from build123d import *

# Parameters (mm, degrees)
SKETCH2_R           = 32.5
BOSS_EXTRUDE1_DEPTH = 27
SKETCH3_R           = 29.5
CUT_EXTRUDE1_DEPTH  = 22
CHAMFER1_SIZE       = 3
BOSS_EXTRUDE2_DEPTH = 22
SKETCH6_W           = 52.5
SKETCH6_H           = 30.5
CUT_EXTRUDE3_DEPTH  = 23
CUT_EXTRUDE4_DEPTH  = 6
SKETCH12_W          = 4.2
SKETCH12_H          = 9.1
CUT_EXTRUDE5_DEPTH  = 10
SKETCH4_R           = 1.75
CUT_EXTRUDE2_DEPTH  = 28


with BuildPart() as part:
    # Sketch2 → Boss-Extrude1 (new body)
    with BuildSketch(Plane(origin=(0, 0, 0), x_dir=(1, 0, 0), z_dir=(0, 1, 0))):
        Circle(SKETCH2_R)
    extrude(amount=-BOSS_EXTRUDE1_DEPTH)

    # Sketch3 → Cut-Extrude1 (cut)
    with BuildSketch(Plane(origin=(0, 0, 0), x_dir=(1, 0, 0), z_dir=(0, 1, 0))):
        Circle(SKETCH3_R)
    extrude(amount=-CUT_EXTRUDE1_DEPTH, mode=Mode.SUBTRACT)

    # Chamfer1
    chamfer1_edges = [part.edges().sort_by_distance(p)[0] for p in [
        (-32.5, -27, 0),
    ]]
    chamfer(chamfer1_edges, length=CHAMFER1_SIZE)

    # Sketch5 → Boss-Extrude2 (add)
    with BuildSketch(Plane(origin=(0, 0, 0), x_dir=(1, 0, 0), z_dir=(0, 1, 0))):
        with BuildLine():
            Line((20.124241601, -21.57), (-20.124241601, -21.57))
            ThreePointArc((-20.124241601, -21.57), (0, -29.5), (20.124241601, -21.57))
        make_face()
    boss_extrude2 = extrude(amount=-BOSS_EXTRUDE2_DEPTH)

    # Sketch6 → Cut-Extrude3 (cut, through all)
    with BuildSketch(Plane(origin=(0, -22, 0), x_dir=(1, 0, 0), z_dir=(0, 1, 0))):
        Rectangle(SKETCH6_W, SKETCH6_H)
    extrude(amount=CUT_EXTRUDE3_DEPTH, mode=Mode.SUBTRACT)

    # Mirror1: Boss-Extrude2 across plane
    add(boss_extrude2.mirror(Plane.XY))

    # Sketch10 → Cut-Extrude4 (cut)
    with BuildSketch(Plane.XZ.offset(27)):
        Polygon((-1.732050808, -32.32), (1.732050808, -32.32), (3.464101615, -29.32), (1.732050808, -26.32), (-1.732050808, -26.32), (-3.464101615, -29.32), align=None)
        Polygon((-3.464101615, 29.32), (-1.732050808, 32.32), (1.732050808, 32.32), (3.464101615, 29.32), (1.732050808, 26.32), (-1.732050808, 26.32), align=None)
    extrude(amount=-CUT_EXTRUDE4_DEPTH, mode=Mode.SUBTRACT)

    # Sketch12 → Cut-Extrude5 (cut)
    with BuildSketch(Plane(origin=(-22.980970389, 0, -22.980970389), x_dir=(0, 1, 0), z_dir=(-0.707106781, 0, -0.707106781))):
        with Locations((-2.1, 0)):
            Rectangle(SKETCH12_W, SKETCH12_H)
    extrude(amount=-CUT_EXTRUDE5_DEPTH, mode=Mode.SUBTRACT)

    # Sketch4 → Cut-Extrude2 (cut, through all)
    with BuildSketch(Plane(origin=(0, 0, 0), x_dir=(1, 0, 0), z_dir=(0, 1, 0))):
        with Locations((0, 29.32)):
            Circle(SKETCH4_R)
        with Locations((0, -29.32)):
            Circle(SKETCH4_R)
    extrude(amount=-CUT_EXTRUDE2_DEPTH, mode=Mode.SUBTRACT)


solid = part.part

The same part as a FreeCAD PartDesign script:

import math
import FreeCAD as App
import Part
import Sketcher

V = App.Vector
Q = App.Units.Quantity


def edges_at(feature, points):
    """Names of the edges that pass closest to the given points."""
    edges = feature.Shape.Edges
    near = lambda p: min(range(len(edges)), key=lambda i: edges[i].distToShape(Part.Vertex(*p))[0])
    return sorted({f"Edge{near(p) + 1}" for p in points})

doc = App.newDocument("Part")
params = doc.addObject("Spreadsheet::Sheet", "Params")
for row, (alias, value) in enumerate([
    ("sketch1_diameter", "65 mm"),
    ("pad1_length", "27 mm"),
    ("sketch2_diameter", "59 mm"),
    ("pocket1_length", "22 mm"),
    ("chamfer_size", "3 mm"),
    ("sketch3_radius", "29.5 mm"),
    ("pad2_length", "22 mm"),
    ("sketch4_width", "52.5 mm"),
    ("sketch4_height", "30.5 mm"),
    ("pocket3_length", "6 mm"),
    ("sketch6_width", "4.2 mm"),
    ("sketch6_height", "9.1 mm"),
    ("pocket4_length", "10 mm"),
    ("sketch7_diameter", "3.5 mm"),
], start=1):
    params.set(f"A{row}", alias)
    params.set(f"B{row}", "=" + value)
    params.setAlias(f"B{row}", alias)

body = doc.addObject("PartDesign::Body", "Body")

# Sketch on XZ plane
sketch1 = body.newObject("Sketcher::SketchObject", "Sketch")
sketch1.AttachmentSupport = (doc.getObject("XZ_Plane"), [""])
sketch1.MapMode = "FlatFace"
sketch1.addGeometry(Part.Circle(V(0, 0, 0), V(0, 0, 1), 32.5), False)
sketch1.addConstraint([
    Sketcher.Constraint("Coincident", 0, 3, -1, 1),
    Sketcher.Constraint("Diameter", 0, Q("65 mm")),
])
sketch1.setExpression("Constraints[1]", "Params.sketch1_diameter")
pad1 = body.newObject("PartDesign::Pad", "Pad")
pad1.Profile = sketch1
pad1.setExpression("Length", "Params.pad1_length")

# Sketch on XZ plane
sketch2 = body.newObject("Sketcher::SketchObject", "Sketch001")
sketch2.AttachmentSupport = (doc.getObject("XZ_Plane"), [""])
sketch2.MapMode = "FlatFace"
sketch2.addGeometry(Part.Circle(V(0, 0, 0), V(0, 0, 1), 29.5), False)
sketch2.addConstraint([
    Sketcher.Constraint("Coincident", 0, 3, -1, 1),
    Sketcher.Constraint("Diameter", 0, Q("59 mm")),
])
sketch2.setExpression("Constraints[1]", "Params.sketch2_diameter")
pocket1 = body.newObject("PartDesign::Pocket", "Pocket")
pocket1.Profile = sketch2
pocket1.setExpression("Length", "Params.pocket1_length")
pocket1.Reversed = True
doc.recompute()

chamfer = body.newObject("PartDesign::Chamfer", "Chamfer")
chamfer.Base = (pocket1, edges_at(pocket1, [(-32.5, -27, 0)]))
chamfer.setExpression("Size", "Params.chamfer_size")

# Sketch on XZ plane
sketch3 = body.newObject("Sketcher::SketchObject", "Sketch002")
sketch3.AttachmentSupport = (doc.getObject("XZ_Plane"), [""])
sketch3.MapMode = "FlatFace"
sketch3.addGeometry([
    Part.LineSegment(V(20.124242, 21.57, 0), V(-20.124242, 21.57, 0)),
    Part.ArcOfCircle(Part.Circle(V(0, 0, 0), V(0, 0, 1), 29.5), math.radians(46.98595), math.radians(133.01405)),
], False)
sketch3.addConstraint([
    Sketcher.Constraint("Coincident", 0, 1, 1, 1),
    Sketcher.Constraint("Coincident", 1, 2, 0, 2),
    Sketcher.Constraint("Horizontal", 0),
    Sketcher.Constraint("Coincident", 1, 3, -1, 1),
    Sketcher.Constraint("Radius", 1, Q("29.5 mm")),
    Sketcher.Constraint("DistanceY", -1, 1, 0, 1, Q("21.57 mm")),
])
sketch3.setExpression("Constraints[4]", "Params.sketch3_radius")
pad2 = body.newObject("PartDesign::Pad", "Pad001")
pad2.Profile = sketch3
pad2.setExpression("Length", "Params.pad2_length")

# Sketch on XZ plane
sketch4 = body.newObject("Sketcher::SketchObject", "Sketch003")
sketch4.AttachmentSupport = (doc.getObject("XZ_Plane"), [""])
sketch4.MapMode = "FlatFace"
sketch4.AttachmentOffset = App.Placement(V(0, 0, 22), App.Rotation())
sketch4.addGeometry([
    Part.LineSegment(V(-26.25, -15.25, 0), V(-26.25, 15.25, 0)),
    Part.LineSegment(V(-26.25, 15.25, 0), V(26.25, 15.25, 0)),
    Part.LineSegment(V(26.25, 15.25, 0), V(26.25, -15.25, 0)),
    Part.LineSegment(V(26.25, -15.25, 0), V(-26.25, -15.25, 0)),
], False)
sketch4.addConstraint([
    Sketcher.Constraint("Coincident", 0, 2, 1, 1),
    Sketcher.Constraint("Coincident", 1, 2, 2, 1),
    Sketcher.Constraint("Coincident", 2, 2, 3, 1),
    Sketcher.Constraint("Coincident", 3, 2, 0, 1),
    Sketcher.Constraint("Vertical", 0),
    Sketcher.Constraint("Horizontal", 1),
    Sketcher.Constraint("Vertical", 2),
    Sketcher.Constraint("Horizontal", 3),
    Sketcher.Constraint("Symmetric", 0, 2, 2, 2, -1, 1),
    Sketcher.Constraint("DistanceX", 1, 1, 1, 2, Q("52.5 mm")),
    Sketcher.Constraint("DistanceY", 0, 1, 0, 2, Q("30.5 mm")),
])
sketch4.setExpression("Constraints[9]", "Params.sketch4_width")
sketch4.setExpression("Constraints[10]", "Params.sketch4_height")
pocket2 = body.newObject("PartDesign::Pocket", "Pocket001")
pocket2.Profile = sketch4
pocket2.Type = "ThroughAll"
doc.recompute()

mirrored = body.newObject("PartDesign::Mirrored", "Mirrored")
mirrored.Originals = [pad2]
mirrored.MirrorPlane = (doc.getObject("XY_Plane"), [""])
body.Tip = mirrored

# Sketch on XZ plane
sketch5 = body.newObject("Sketcher::SketchObject", "Sketch004")
sketch5.AttachmentSupport = (doc.getObject("XZ_Plane"), [""])
sketch5.MapMode = "FlatFace"
sketch5.AttachmentOffset = App.Placement(V(0, 0, 27), App.Rotation())
sketch5.addGeometry([
    Part.LineSegment(V(-1.732051, -32.32, 0), V(1.732051, -32.32, 0)),  # 0
    Part.LineSegment(V(1.732051, -32.32, 0), V(3.464102, -29.32, 0)),  # 1
    Part.LineSegment(V(3.464102, -29.32, 0), V(1.732051, -26.32, 0)),  # 2
    Part.LineSegment(V(1.732051, -26.32, 0), V(-1.732051, -26.32, 0)),  # 3
    Part.LineSegment(V(-1.732051, -26.32, 0), V(-3.464102, -29.32, 0)),  # 4
    Part.LineSegment(V(-3.464102, -29.32, 0), V(-1.732051, -32.32, 0)),  # 5
    Part.LineSegment(V(-1.732051, 32.32, 0), V(-3.464102, 29.32, 0)),  # 6
    Part.LineSegment(V(-3.464102, 29.32, 0), V(-1.732051, 26.32, 0)),  # 7
    Part.LineSegment(V(-1.732051, 26.32, 0), V(1.732051, 26.32, 0)),  # 8
    Part.LineSegment(V(1.732051, 26.32, 0), V(3.464102, 29.32, 0)),  # 9
    Part.LineSegment(V(3.464102, 29.32, 0), V(1.732051, 32.32, 0)),  # 10
    Part.LineSegment(V(1.732051, 32.32, 0), V(-1.732051, 32.32, 0)),  # 11
], False)
sketch5.addConstraint([
    Sketcher.Constraint("Coincident", 0, 2, 1, 1),
    Sketcher.Constraint("Coincident", 1, 2, 2, 1),
    Sketcher.Constraint("Coincident", 2, 2, 3, 1),
    Sketcher.Constraint("Coincident", 3, 2, 4, 1),
    Sketcher.Constraint("Coincident", 4, 2, 5, 1),
    Sketcher.Constraint("Coincident", 5, 2, 0, 1),
    Sketcher.Constraint("Coincident", 6, 2, 7, 1),
    Sketcher.Constraint("Coincident", 7, 2, 8, 1),
    Sketcher.Constraint("Coincident", 8, 2, 9, 1),
    Sketcher.Constraint("Coincident", 9, 2, 10, 1),
    Sketcher.Constraint("Coincident", 10, 2, 11, 1),
    Sketcher.Constraint("Coincident", 11, 2, 6, 1),
    Sketcher.Constraint("Horizontal", 0),
    Sketcher.Constraint("Horizontal", 3),
    Sketcher.Constraint("Horizontal", 8),
    Sketcher.Constraint("Horizontal", 11),
    Sketcher.Constraint("Symmetric", 1, 2, 6, 2, -1, 1),
    Sketcher.Constraint("Symmetric", 2, 2, 7, 2, -1, 1),
    Sketcher.Constraint("Symmetric", 4, 2, 9, 2, -1, 1),
    Sketcher.Constraint("Symmetric", 5, 2, 10, 2, -1, 1),
    Sketcher.Constraint("Symmetric", 1, 2, 4, 2, -2),
    Sketcher.Constraint("Parallel", 1, 4),
    Sketcher.Constraint("Parallel", 2, 5),
    Sketcher.Constraint("Parallel", 4, 6),
    Sketcher.Constraint("Parallel", 6, 9),
    Sketcher.Constraint("Vertical", 0, 2, 2, 2),
    Sketcher.Constraint("Vertical", 3, 2, 5, 2),
    Sketcher.Constraint("Angle", 1, Q("60 deg")),
    Sketcher.Constraint("DistanceY", 0, 2, 1, 2, Q("3 mm")),
    Sketcher.Constraint("DistanceY", 0, 2, -1, 1, Q("32.32 mm")),
    Sketcher.Constraint("DistanceX", 0, 1, 0, 2, Q("3.464102 mm")),
])
pocket3 = body.newObject("PartDesign::Pocket", "Pocket002")
pocket3.Profile = sketch5
pocket3.setExpression("Length", "Params.pocket3_length")

# Sketch on an angled plane
sketch6 = body.newObject("Sketcher::SketchObject", "Sketch005")
sketch6.Placement = App.Placement(V(-22.98097, 0, -22.98097), App.Rotation(V(0, 1, 0), V(0.707106781, 0, -0.707106781), V(-0.707106781, 0, -0.707106781), "ZXY"))
sketch6.addGeometry([
    Part.LineSegment(V(-4.2, 4.55, 0), V(-4.2, -4.55, 0)),
    Part.LineSegment(V(-4.2, -4.55, 0), V(0, -4.55, 0)),
    Part.LineSegment(V(0, -4.55, 0), V(0, 4.55, 0)),
    Part.LineSegment(V(0, 4.55, 0), V(-4.2, 4.55, 0)),
], False)
sketch6.addConstraint([
    Sketcher.Constraint("Coincident", 0, 2, 1, 1),
    Sketcher.Constraint("Coincident", 1, 2, 2, 1),
    Sketcher.Constraint("Coincident", 2, 2, 3, 1),
    Sketcher.Constraint("Coincident", 3, 2, 0, 1),
    Sketcher.Constraint("Vertical", 0),
    Sketcher.Constraint("Horizontal", 1),
    Sketcher.Constraint("Vertical", 2),
    Sketcher.Constraint("Horizontal", 3),
    Sketcher.Constraint("Symmetric", 1, 2, 2, 2, -1, 1),
    Sketcher.Constraint("DistanceX", 1, 1, 1, 2, Q("4.2 mm")),
    Sketcher.Constraint("DistanceY", 0, 2, 0, 1, Q("9.1 mm")),
])
sketch6.setExpression("Constraints[9]", "Params.sketch6_width")
sketch6.setExpression("Constraints[10]", "Params.sketch6_height")
pocket4 = body.newObject("PartDesign::Pocket", "Pocket003")
pocket4.Profile = sketch6
pocket4.setExpression("Length", "Params.pocket4_length")

# Sketch on XZ plane
sketch7 = body.newObject("Sketcher::SketchObject", "Sketch006")
sketch7.AttachmentSupport = (doc.getObject("XZ_Plane"), [""])
sketch7.MapMode = "FlatFace"
sketch7.addGeometry([
    Part.Circle(V(0, -29.32, 0), V(0, 0, 1), 1.75),
    Part.Circle(V(0, 29.32, 0), V(0, 0, 1), 1.75),
], False)
sketch7.addConstraint([
    Sketcher.Constraint("Equal", 0, 1),
    Sketcher.Constraint("Symmetric", 0, 3, 1, 3, -1, 1),
    Sketcher.Constraint("PointOnObject", 0, 3, -2),
    Sketcher.Constraint("Diameter", 0, Q("3.5 mm")),
    Sketcher.Constraint("DistanceY", 0, 3, -1, 1, Q("29.32 mm")),
])
sketch7.setExpression("Constraints[3]", "Params.sketch7_diameter")
pocket5 = body.newObject("PartDesign::Pocket", "Pocket004")
pocket5.Profile = sketch7
pocket5.Type = "ThroughAll"
pocket5.Reversed = True

doc.recompute()
